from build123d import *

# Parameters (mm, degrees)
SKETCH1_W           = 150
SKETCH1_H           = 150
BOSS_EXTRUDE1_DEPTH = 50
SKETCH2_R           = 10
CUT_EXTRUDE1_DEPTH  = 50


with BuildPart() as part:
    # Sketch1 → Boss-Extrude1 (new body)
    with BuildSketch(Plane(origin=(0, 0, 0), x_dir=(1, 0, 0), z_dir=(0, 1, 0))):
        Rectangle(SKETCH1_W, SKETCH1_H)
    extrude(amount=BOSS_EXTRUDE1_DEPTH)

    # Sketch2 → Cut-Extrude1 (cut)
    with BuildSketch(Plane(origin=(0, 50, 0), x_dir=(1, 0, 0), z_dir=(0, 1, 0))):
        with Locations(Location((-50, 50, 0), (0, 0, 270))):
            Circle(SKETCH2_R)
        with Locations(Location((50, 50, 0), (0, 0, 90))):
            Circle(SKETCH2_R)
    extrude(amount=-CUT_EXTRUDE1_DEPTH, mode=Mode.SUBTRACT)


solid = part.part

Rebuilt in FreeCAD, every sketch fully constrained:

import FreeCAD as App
import Part
import Sketcher

V = App.Vector
Q = App.Units.Quantity

doc = App.newDocument("Part")
body = doc.addObject("PartDesign::Body", "Body")

# Sketch on XZ plane
sketch1 = body.newObject("Sketcher::SketchObject", "Sketch")
sketch1.AttachmentSupport = (doc.getObject("XZ_Plane"), [""])
sketch1.MapMode = "FlatFace"
sketch1.addGeometry([
    Part.LineSegment(V(-75, -75, 0), V(-75, 75, 0)),
    Part.LineSegment(V(-75, 75, 0), V(75, 75, 0)),
    Part.LineSegment(V(75, 75, 0), V(75, -75, 0)),
    Part.LineSegment(V(75, -75, 0), V(-75, -75, 0)),
], False)
sketch1.addConstraint([
    Sketcher.Constraint("Coincident", 0, 2, 1, 1),
    Sketcher.Constraint("Coincident", 1, 2, 2, 1),
    Sketcher.Constraint("Coincident", 2, 2, 3, 1),
    Sketcher.Constraint("Coincident", 3, 2, 0, 1),
    Sketcher.Constraint("Vertical", 0),
    Sketcher.Constraint("Horizontal", 1),
    Sketcher.Constraint("Vertical", 2),
    Sketcher.Constraint("Horizontal", 3),
    Sketcher.Constraint("Symmetric", 0, 2, 2, 2, -1, 1),
    Sketcher.Constraint("Equal", 3, 0),
    Sketcher.Constraint("DistanceX", 1, 1, 1, 2, Q("150 mm")),
])
pad1 = body.newObject("PartDesign::Pad", "Pad")
pad1.Profile = sketch1
pad1.Length = 50
pad1.Reversed = True

# Sketch on XZ plane
sketch2 = body.newObject("Sketcher::SketchObject", "Sketch001")
sketch2.AttachmentSupport = (doc.getObject("XZ_Plane"), [""])
sketch2.MapMode = "FlatFace"
sketch2.AttachmentOffset = App.Placement(V(0, 0, -50), App.Rotation())
sketch2.addGeometry([
    Part.Circle(V(-50, -50, 0), V(0, 0, 1), 10),
    Part.Circle(V(50, -50, 0), V(0, 0, 1), 10),
], False)
sketch2.addConstraint([
    Sketcher.Constraint("Equal", 0, 1),
    Sketcher.Constraint("Symmetric", 0, 3, 1, 3, -2),
    Sketcher.Constraint("Diameter", 0, Q("20 mm")),
    Sketcher.Constraint("DistanceX", 0, 3, -1, 1, Q("50 mm")),
    Sketcher.Constraint("DistanceY", 0, 3, -1, 1, Q("50 mm")),
])
pocket1 = body.newObject("PartDesign::Pocket", "Pocket")
pocket1.Profile = sketch2
pocket1.Length = 50
pocket1.Reversed = True

doc.recompute()
